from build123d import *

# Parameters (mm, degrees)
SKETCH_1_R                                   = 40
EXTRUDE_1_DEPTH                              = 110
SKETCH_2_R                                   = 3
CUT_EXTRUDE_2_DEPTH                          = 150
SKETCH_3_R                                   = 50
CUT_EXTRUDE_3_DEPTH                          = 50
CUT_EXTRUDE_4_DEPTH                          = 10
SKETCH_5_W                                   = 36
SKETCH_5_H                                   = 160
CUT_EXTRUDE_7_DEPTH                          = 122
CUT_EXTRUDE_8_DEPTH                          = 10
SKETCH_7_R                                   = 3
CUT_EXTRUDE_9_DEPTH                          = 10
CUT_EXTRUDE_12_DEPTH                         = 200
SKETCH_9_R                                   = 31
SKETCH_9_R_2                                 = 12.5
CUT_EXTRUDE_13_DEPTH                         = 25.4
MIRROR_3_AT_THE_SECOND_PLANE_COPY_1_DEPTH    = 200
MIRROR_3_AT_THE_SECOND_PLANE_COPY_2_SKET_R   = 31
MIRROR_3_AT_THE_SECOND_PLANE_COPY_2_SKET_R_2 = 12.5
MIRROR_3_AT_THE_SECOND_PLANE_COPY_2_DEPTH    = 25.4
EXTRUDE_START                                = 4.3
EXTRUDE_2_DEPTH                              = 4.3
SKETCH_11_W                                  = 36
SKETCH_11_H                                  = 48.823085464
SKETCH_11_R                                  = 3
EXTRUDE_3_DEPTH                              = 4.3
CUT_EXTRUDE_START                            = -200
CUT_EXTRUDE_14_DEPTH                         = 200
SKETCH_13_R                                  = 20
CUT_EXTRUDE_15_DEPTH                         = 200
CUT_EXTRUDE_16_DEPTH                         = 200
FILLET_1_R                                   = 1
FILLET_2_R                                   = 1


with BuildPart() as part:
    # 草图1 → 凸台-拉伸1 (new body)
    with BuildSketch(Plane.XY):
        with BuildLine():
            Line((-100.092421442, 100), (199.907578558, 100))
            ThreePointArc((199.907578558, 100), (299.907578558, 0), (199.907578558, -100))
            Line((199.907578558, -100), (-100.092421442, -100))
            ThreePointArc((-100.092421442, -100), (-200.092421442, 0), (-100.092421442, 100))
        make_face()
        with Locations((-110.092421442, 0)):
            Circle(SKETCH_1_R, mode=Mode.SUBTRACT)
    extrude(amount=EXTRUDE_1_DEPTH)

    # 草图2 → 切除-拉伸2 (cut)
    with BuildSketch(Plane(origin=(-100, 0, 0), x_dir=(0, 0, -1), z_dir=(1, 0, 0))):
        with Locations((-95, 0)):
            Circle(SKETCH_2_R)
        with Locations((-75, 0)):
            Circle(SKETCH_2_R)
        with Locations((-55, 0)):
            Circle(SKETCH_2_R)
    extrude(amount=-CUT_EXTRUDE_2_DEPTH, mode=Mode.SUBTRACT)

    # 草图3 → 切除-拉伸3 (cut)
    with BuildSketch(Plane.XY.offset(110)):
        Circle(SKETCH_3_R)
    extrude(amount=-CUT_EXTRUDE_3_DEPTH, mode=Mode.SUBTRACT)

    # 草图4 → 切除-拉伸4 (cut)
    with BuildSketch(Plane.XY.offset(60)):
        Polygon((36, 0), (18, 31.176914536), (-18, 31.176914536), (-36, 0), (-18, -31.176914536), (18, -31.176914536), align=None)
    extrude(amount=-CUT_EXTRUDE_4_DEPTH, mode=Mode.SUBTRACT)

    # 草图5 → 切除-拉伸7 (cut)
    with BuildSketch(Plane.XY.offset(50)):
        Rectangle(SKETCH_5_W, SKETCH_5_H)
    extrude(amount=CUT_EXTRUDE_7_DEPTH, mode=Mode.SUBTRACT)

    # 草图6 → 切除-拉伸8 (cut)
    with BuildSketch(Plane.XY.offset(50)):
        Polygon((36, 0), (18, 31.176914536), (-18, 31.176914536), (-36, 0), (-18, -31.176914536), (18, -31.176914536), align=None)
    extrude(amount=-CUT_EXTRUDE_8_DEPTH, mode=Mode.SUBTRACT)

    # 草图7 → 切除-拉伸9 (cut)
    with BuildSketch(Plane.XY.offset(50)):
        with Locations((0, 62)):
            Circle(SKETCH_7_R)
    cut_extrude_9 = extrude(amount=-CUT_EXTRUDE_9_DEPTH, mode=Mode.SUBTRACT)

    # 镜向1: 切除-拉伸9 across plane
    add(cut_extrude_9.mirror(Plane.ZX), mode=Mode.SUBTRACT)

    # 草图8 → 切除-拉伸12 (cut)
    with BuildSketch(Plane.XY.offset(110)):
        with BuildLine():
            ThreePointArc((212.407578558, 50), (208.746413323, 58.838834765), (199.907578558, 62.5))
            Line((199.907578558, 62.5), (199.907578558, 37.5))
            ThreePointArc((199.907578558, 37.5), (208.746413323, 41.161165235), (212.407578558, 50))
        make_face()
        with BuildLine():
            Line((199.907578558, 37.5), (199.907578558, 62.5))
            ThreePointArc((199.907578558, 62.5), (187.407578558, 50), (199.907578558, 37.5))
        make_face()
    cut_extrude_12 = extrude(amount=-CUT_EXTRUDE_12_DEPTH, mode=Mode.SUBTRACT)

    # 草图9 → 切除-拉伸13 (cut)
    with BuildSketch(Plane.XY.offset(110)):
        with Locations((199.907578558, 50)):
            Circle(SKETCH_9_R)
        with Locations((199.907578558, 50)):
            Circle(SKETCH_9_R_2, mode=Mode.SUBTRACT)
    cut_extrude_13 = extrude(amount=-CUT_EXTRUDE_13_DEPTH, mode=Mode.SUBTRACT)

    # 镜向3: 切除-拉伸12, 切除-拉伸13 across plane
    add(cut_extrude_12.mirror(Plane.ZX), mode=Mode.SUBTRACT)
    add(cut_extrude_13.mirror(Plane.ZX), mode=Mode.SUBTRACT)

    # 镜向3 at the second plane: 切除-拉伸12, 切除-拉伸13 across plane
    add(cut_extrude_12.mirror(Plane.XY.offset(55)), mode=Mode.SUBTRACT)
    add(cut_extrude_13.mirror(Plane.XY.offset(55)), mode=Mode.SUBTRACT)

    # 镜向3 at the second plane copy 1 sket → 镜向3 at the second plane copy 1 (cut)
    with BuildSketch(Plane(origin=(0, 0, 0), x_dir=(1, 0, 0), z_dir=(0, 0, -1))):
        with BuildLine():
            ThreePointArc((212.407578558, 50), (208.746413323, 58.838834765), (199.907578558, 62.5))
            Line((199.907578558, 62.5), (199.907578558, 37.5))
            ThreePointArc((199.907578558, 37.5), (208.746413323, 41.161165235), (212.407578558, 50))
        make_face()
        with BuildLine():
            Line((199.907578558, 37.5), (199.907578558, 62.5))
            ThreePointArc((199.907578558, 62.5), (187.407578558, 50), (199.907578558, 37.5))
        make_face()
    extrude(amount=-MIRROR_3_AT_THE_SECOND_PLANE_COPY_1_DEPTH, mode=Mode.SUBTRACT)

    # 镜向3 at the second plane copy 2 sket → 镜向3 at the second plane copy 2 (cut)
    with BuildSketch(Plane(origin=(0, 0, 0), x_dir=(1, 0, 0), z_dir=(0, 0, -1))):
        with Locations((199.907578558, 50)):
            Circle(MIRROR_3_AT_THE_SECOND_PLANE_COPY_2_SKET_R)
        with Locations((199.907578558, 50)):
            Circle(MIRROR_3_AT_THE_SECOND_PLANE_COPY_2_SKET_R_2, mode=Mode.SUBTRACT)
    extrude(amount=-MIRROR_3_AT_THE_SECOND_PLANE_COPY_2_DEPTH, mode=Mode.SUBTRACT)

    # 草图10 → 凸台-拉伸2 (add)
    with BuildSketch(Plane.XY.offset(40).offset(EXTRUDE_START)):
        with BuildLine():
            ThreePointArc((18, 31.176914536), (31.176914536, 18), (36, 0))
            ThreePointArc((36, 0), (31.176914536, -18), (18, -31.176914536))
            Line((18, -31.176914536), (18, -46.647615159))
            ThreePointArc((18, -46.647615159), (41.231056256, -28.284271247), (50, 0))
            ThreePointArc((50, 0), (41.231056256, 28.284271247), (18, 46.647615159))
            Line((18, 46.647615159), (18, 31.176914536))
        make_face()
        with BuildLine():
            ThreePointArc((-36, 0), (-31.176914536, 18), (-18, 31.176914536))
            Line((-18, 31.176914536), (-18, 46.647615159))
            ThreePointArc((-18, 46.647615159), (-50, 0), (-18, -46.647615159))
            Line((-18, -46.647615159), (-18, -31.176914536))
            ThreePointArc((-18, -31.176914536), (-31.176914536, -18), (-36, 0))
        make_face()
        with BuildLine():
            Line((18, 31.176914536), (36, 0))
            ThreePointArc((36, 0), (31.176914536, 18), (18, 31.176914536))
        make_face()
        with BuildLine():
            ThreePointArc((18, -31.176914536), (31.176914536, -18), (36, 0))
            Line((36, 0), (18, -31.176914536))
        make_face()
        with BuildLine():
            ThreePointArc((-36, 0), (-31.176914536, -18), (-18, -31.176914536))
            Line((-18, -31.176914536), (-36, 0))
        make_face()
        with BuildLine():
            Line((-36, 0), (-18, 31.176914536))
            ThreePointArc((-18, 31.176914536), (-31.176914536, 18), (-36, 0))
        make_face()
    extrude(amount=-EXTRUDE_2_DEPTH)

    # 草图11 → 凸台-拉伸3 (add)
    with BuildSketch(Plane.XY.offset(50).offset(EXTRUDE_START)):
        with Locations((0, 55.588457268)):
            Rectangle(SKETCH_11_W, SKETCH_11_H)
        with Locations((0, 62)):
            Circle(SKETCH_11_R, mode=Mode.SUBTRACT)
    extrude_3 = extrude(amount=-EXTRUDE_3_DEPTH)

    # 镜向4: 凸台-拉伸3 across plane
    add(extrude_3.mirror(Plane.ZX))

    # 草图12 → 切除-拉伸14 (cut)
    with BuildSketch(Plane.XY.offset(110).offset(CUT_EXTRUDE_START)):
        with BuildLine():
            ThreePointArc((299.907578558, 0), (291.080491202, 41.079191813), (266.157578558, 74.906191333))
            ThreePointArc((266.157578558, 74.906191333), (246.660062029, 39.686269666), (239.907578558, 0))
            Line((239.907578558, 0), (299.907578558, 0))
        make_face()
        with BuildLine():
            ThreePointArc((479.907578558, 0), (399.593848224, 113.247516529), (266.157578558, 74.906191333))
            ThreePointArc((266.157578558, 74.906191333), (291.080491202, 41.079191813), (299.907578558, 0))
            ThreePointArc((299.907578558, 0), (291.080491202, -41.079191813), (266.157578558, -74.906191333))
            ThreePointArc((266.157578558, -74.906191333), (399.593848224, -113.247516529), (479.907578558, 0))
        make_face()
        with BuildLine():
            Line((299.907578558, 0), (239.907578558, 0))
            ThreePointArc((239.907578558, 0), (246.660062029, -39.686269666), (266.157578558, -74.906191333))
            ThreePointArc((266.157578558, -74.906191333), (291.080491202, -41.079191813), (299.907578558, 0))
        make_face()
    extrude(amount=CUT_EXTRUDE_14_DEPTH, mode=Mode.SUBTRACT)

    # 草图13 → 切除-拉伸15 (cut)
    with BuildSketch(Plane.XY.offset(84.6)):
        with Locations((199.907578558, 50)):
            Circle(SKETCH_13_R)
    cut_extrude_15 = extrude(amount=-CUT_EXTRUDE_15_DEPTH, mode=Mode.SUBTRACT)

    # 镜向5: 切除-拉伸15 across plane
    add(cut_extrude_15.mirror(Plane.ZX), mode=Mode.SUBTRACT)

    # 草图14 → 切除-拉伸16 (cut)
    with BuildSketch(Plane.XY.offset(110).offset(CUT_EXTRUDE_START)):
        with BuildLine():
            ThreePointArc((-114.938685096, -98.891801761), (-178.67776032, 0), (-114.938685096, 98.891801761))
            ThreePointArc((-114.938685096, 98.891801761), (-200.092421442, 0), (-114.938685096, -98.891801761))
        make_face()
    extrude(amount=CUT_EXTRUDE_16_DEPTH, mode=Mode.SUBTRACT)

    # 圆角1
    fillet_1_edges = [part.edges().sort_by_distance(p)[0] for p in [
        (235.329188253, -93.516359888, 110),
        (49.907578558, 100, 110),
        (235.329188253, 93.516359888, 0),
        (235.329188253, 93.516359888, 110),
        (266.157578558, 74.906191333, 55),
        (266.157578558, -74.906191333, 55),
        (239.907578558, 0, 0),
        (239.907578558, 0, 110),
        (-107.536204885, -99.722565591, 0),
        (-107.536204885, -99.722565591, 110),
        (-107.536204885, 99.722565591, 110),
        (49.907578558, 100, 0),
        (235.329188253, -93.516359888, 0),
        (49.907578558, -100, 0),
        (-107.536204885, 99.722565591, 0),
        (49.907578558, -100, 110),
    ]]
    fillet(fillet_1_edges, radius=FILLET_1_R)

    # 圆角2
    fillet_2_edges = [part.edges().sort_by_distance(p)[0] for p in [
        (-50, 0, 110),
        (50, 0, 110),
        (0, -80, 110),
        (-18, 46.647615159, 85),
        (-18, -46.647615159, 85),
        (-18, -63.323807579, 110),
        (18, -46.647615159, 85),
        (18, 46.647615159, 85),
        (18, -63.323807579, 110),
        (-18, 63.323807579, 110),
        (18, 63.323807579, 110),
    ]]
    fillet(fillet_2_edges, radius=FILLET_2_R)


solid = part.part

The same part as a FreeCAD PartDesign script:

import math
import FreeCAD as App
import Part
import Sketcher
from FreeCAD import Vector
Q = App.Units.Quantity


def edges_at(feature, points):
    """Names of the edges that pass closest to the given points."""
    edges = feature.Shape.Edges
    near = lambda p: min(range(len(edges)), key=lambda i: edges[i].distToShape(Part.Vertex(*p))[0])
    return sorted({f"Edge{near(p) + 1}" for p in points})


def add_polygon(sketch, points):
    """Adds a closed chain of lines whose ends are joined by coincident constraints."""
    first, n = sketch.GeometryCount, len(points)
    for a, b in zip(points, points[1:] + points[:1]):
        sketch.addGeometry(Part.LineSegment(App.Vector(*a, 0), App.Vector(*b, 0)), False)
    for i in range(n):
        sketch.addConstraint(Sketcher.Constraint("Coincident", first + i, 2, first + (i + 1) % n, 1))

doc = App.newDocument("Part")
body = doc.addObject("PartDesign::Body", "Body")

sketch1 = body.newObject("Sketcher::SketchObject", "Sketch")
sketch1.AttachmentSupport = (doc.getObject("XY_Plane"), [""])
sketch1.MapMode = "FlatFace"
sketch1.addGeometry([
    Part.LineSegment(Vector(200, 100, 0), Vector(-100, 100, 0)),
    Part.ArcOfCircle(Part.Circle(Vector(-100, 0, 0), Vector(0, 0, 1), 100), math.radians(90), math.radians(270)),
    Part.LineSegment(Vector(-100, -100, 0), Vector(200, -100, 0)),
    Part.ArcOfCircle(Part.Circle(Vector(200, 0, 0), Vector(0, 0, 1), 100), math.radians(-90), math.radians(90)),
    Part.Circle(Vector(-110, 0, 0), Vector(0, 0, 1), 40),
], False)
sketch1.addConstraint([
    Sketcher.Constraint("Tangent", 0, 2, 1, 1),
    Sketcher.Constraint("Tangent", 1, 2, 2, 1),
    Sketcher.Constraint("Tangent", 2, 2, 3, 1),
    Sketcher.Constraint("Tangent", 3, 2, 0, 1),
    Sketcher.Constraint("Horizontal", 0),
    Sketcher.Constraint("Horizontal", 2),
    Sketcher.Constraint("PointOnObject", 1, 3, -1),
    Sketcher.Constraint("PointOnObject", 4, 3, -1),
    Sketcher.Constraint("Diameter", 4, Q("80 mm")),
    Sketcher.Constraint("Radius", 1, Q("100 mm")),
    Sketcher.Constraint("DistanceX", 0, 2, 0, 1, Q("300 mm")),
    Sketcher.Constraint("DistanceX", 4, 3, 1, 3, Q("10 mm")),
    Sketcher.Constraint("DistanceX", 1, 3, -1, 1, Q("100.092421 mm")),
])
pad1 = body.newObject("PartDesign::Pad", "Pad")
pad1.Profile = sketch1
pad1.Length = 110

sketch2 = body.newObject("Sketcher::SketchObject", "Sketch001")
sketch2.AttachmentSupport = (doc.getObject("YZ_Plane"), [""])
sketch2.MapMode = "FlatFace"
sketch2.AttachmentOffset = App.Placement(Vector(0, 0, -100), App.Rotation())
sketch2.addGeometry([
    Part.Circle(Vector(0, 95, 0), Vector(0, 0, 1), 3),
    Part.Circle(Vector(0, 75, 0), Vector(0, 0, 1), 3),
    Part.Circle(Vector(0, 55, 0), Vector(0, 0, 1), 3),
], False)
sketch2.addConstraint([
    Sketcher.Constraint("Equal", 0, 1),
    Sketcher.Constraint("Equal", 1, 2),
    Sketcher.Constraint("PointOnObject", 0, 3, -2),
    Sketcher.Constraint("PointOnObject", 1, 3, -2),
    Sketcher.Constraint("PointOnObject", 2, 3, -2),
    Sketcher.Constraint("Diameter", 0, Q("6 mm")),
    Sketcher.Constraint("DistanceY", -1, 1, 0, 3, Q("95 mm")),
    Sketcher.Constraint("DistanceY", -1, 1, 1, 3, Q("75 mm")),
    Sketcher.Constraint("DistanceY", -1, 1, 2, 3, Q("55 mm")),
])
pocket1 = body.newObject("PartDesign::Pocket", "Pocket")
pocket1.Profile = sketch2
pocket1.Length = 150

sketch3 = body.newObject("Sketcher::SketchObject", "Sketch002")
sketch3.AttachmentSupport = (doc.getObject("XY_Plane"), [""])
sketch3.MapMode = "FlatFace"
sketch3.AttachmentOffset = App.Placement(Vector(0, 0, 110), App.Rotation())
sketch3.addGeometry(Part.Circle(Vector(0, 0, 0), Vector(0, 0, 1), 50), False)
sketch3.addConstraint([
    Sketcher.Constraint("Coincident", 0, 3, -1, 1),
    Sketcher.Constraint("Diameter", 0, Q("100 mm")),
])
pocket2 = body.newObject("PartDesign::Pocket", "Pocket001")
pocket2.Profile = sketch3
pocket2.Length = 50

sketch4 = body.newObject("Sketcher::SketchObject", "Sketch003")
sketch4.AttachmentSupport = (doc.getObject("XY_Plane"), [""])
sketch4.MapMode = "FlatFace"
sketch4.AttachmentOffset = App.Placement(Vector(0, 0, 60), App.Rotation())
add_polygon(sketch4, [(36, 0), (18, 31), (-18, 31), (-36, 0), (-18, -31), (18, -31)])
sketch4.addConstraint([
    Sketcher.Constraint("Horizontal", 1),
    Sketcher.Constraint("Horizontal", 4),
    Sketcher.Constraint("Symmetric", 0, 2, 3, 2, -1, 1),
    Sketcher.Constraint("Symmetric", 2, 2, 5, 2, -1, 1),
    Sketcher.Constraint("PointOnObject", 2, 2, -1),
    Sketcher.Constraint("Parallel", 2, 5),
    Sketcher.Constraint("Vertical", 1, 2, 3, 2),
    Sketcher.Constraint("DistanceX", 1, 2, 1, 1, Q("36 mm")),
    Sketcher.Constraint("Angle", 0, Q("120 deg")),
    Sketcher.Constraint("Distance", 0, Q("36 mm")),
])
pocket3 = body.newObject("PartDesign::Pocket", "Pocket002")
pocket3.Profile = sketch4
pocket3.Length = 10

sketch5 = body.newObject("Sketcher::SketchObject", "Sketch004")
sketch5.AttachmentSupport = (doc.getObject("XY_Plane"), [""])
sketch5.MapMode = "FlatFace"
sketch5.AttachmentOffset = App.Placement(Vector(0, 0, 50), App.Rotation())
add_polygon(sketch5, [(-18, 80), (-18, -80), (18, -80), (18, 80)])
sketch5.addConstraint([
    Sketcher.Constraint("Vertical", 0),
    Sketcher.Constraint("Horizontal", 1),
    Sketcher.Constraint("Vertical", 2),
    Sketcher.Constraint("Horizontal", 3),
    Sketcher.Constraint("Symmetric", 0, 2, 2, 2, -1, 1),
    Sketcher.Constraint("DistanceX", 1, 1, 1, 2, Q("36 mm")),
    Sketcher.Constraint("DistanceY", 0, 2, 0, 1, Q("160 mm")),
])
pocket4 = body.newObject("PartDesign::Pocket", "Pocket003")
pocket4.Profile = sketch5
pocket4.Length = 122
pocket4.Reversed = True

sketch6 = body.newObject("Sketcher::SketchObject", "Sketch005")
sketch6.AttachmentSupport = (doc.getObject("XY_Plane"), [""])
sketch6.MapMode = "FlatFace"
sketch6.AttachmentOffset = App.Placement(Vector(0, 0, 50), App.Rotation())
add_polygon(sketch6, [(36, 0), (18, 31), (-18, 31), (-36, 0), (-18, -31), (18, -31)])
sketch6.addConstraint([
    Sketcher.Constraint("Horizontal", 1),
    Sketcher.Constraint("Horizontal", 4),
    Sketcher.Constraint("Symmetric", 0, 2, 3, 2, -1, 1),
    Sketcher.Constraint("Symmetric", 2, 2, 5, 2, -1, 1),
    Sketcher.Constraint("PointOnObject", 2, 2, -1),
    Sketcher.Constraint("Parallel", 2, 5),
    Sketcher.Constraint("Vertical", 1, 2, 3, 2),
    Sketcher.Constraint("DistanceX", 1, 2, 1, 1, Q("36 mm")),
    Sketcher.Constraint("Angle", 0, Q("120 deg")),
    Sketcher.Constraint("Distance", 0, Q("36 mm")),
])
pocket5 = body.newObject("PartDesign::Pocket", "Pocket004")
pocket5.Profile = sketch6
pocket5.Length = 10

sketch7 = body.newObject("Sketcher::SketchObject", "Sketch006")
sketch7.AttachmentSupport = (doc.getObject("XY_Plane"), [""])
sketch7.MapMode = "FlatFace"
sketch7.AttachmentOffset = App.Placement(Vector(0, 0, 50), App.Rotation())
sketch7.addGeometry(Part.Circle(Vector(0, 62, 0), Vector(0, 0, 1), 3), False)
sketch7.addConstraint([
    Sketcher.Constraint("PointOnObject", 0, 3, -2),
    Sketcher.Constraint("Diameter", 0, Q("6 mm")),
    Sketcher.Constraint("DistanceY", -1, 1, 0, 3, Q("62 mm")),
])
pocket6 = body.newObject("PartDesign::Pocket", "Pocket005")
pocket6.Profile = sketch7
pocket6.Length = 10
doc.recompute()

mirrored = body.newObject("PartDesign::Mirrored", "Mirrored")
mirrored.Originals = [pocket6]
mirrored.MirrorPlane = (doc.getObject("XZ_Plane"), [""])
body.Tip = mirrored

sketch8 = body.newObject("Sketcher::SketchObject", "Sketch007")
sketch8.AttachmentSupport = (doc.getObject("XY_Plane"), [""])
sketch8.MapMode = "FlatFace"
sketch8.AttachmentOffset = App.Placement(Vector(0, 0, 110), App.Rotation())
sketch8.addGeometry([
    Part.ArcOfCircle(Part.Circle(Vector(200, 50, 0), Vector(0, 0, 1), 12), math.radians(0), math.radians(90)),
    Part.ArcOfCircle(Part.Circle(Vector(200, 50, 0), Vector(0, 0, 1), 12), math.radians(90), math.radians(270)),
    Part.ArcOfCircle(Part.Circle(Vector(200, 50, 0), Vector(0, 0, 1), 12), math.radians(-90), math.radians(0)),
], False)
sketch8.addConstraint([
    Sketcher.Constraint("Tangent", 0, 2, 1, 1),
    Sketcher.Constraint("Tangent", 1, 2, 2, 1),
    Sketcher.Constraint("Tangent", 2, 2, 0, 1),
    Sketcher.Constraint("Horizontal", 1, 3, 2, 2),
    Sketcher.Constraint("Vertical", 2, 3, 0, 2),
    Sketcher.Constraint("Vertical", 0, 2, 1, 2),
    Sketcher.Constraint("Radius", 0, Q("12.5 mm")),
    Sketcher.Constraint("DistanceY", -1, 1, 0, 3, Q("50 mm")),
    Sketcher.Constraint("DistanceX", -1, 1, 0, 3, Q("199.907579 mm")),
])
pocket7 = body.newObject("PartDesign::Pocket", "Pocket006")
pocket7.Profile = sketch8
pocket7.Length = 200

sketch9 = body.newObject("Sketcher::SketchObject", "Sketch008")
sketch9.AttachmentSupport = (doc.getObject("XY_Plane"), [""])
sketch9.MapMode = "FlatFace"
sketch9.AttachmentOffset = App.Placement(Vector(0, 0, 110), App.Rotation())
sketch9.addGeometry([
    Part.Circle(Vector(200, 50, 0), Vector(0, 0, 1), 31),
    Part.Circle(Vector(200, 50, 0), Vector(0, 0, 1), 12),
], False)
sketch9.addConstraint([
    Sketcher.Constraint("Coincident", 1, 3, 0, 3),
    Sketcher.Constraint("Diameter", 0, Q("62 mm")),
    Sketcher.Constraint("Diameter", 1, Q("25 mm")),
    Sketcher.Constraint("DistanceY", -1, 1, 0, 3, Q("50 mm")),
    Sketcher.Constraint("DistanceX", -1, 1, 0, 3, Q("199.907579 mm")),
])
pocket8 = body.newObject("PartDesign::Pocket", "Pocket007")
pocket8.Profile = sketch9
pocket8.Length = 25.4
doc.recompute()

mirrored2 = body.newObject("PartDesign::Mirrored", "Mirrored001")
mirrored2.Originals = [pocket7, pocket8]
mirrored2.MirrorPlane = (doc.getObject("XZ_Plane"), [""])
body.Tip = mirrored2
doc.recompute()

datumplane = body.newObject("PartDesign::Plane", "DatumPlane")
datumplane.AttachmentSupport = (doc.getObject("XY_Plane"), [""])
datumplane.MapMode = "FlatFace"
datumplane.AttachmentOffset = App.Placement(Vector(0, 0, 55), App.Rotation())
mirrored3 = body.newObject("PartDesign::Mirrored", "Mirrored002")
mirrored3.Originals = [pocket7, pocket8]
mirrored3.MirrorPlane = (datumplane, [""])
body.Tip = mirrored3

sketch10 = body.newObject("Sketcher::SketchObject", "Sketch009")
sketch10.AttachmentSupport = (doc.getObject("XY_Plane"), [""])
sketch10.MapMode = "FlatFace"
sketch10.addGeometry([
    Part.ArcOfCircle(Part.Circle(Vector(200, -50, 0), Vector(0, 0, 1), 12), math.radians(-90), math.radians(0)),
    Part.ArcOfCircle(Part.Circle(Vector(200, -50, 0), Vector(0, 0, 1), 12), math.radians(90), math.radians(270)),
    Part.ArcOfCircle(Part.Circle(Vector(200, -50, 0), Vector(0, 0, 1), 12), math.radians(0), math.radians(90)),
], False)
sketch10.addConstraint([
    Sketcher.Constraint("Tangent", 0, 1, 1, 2),
    Sketcher.Constraint("Tangent", 1, 1, 2, 2),
    Sketcher.Constraint("Tangent", 2, 1, 0, 2),
    Sketcher.Constraint("Horizontal", 1, 3, 2, 1),
    Sketcher.Constraint("Vertical", 2, 3, 0, 1),
    Sketcher.Constraint("Vertical", 0, 1, 1, 1),
    Sketcher.Constraint("Radius", 0, Q("12.5 mm")),
    Sketcher.Constraint("DistanceY", 0, 3, -1, 1, Q("50 mm")),
    Sketcher.Constraint("DistanceX", -1, 1, 0, 3, Q("199.907579 mm")),
])
pocket9 = body.newObject("PartDesign::Pocket", "Pocket008")
pocket9.Profile = sketch10
pocket9.Length = 200
pocket9.Reversed = True

sketch11 = body.newObject("Sketcher::SketchObject", "Sketch010")
sketch11.AttachmentSupport = (doc.getObject("XY_Plane"), [""])
sketch11.MapMode = "FlatFace"
sketch11.addGeometry([
    Part.Circle(Vector(200, -50, 0), Vector(0, 0, 1), 31),
    Part.Circle(Vector(200, -50, 0), Vector(0, 0, 1), 12),
], False)
sketch11.addConstraint([
    Sketcher.Constraint("Coincident", 1, 3, 0, 3),
    Sketcher.Constraint("Diameter", 0, Q("62 mm")),
    Sketcher.Constraint("Diameter", 1, Q("25 mm")),
    Sketcher.Constraint("DistanceY", 0, 3, -1, 1, Q("50 mm")),
    Sketcher.Constraint("DistanceX", -1, 1, 0, 3, Q("199.907579 mm")),
])
pocket10 = body.newObject("PartDesign::Pocket", "Pocket009")
pocket10.Profile = sketch11
pocket10.Length = 25.4
pocket10.Reversed = True

sketch12 = body.newObject("Sketcher::SketchObject", "Sketch011")
sketch12.AttachmentSupport = (doc.getObject("XY_Plane"), [""])
sketch12.MapMode = "FlatFace"
sketch12.AttachmentOffset = App.Placement(Vector(0, 0, 44.3), App.Rotation())
sketch12.addGeometry([
    Part.LineSegment(Vector(18, -31, 0), Vector(18, -47, 0)),
    Part.ArcOfCircle(Part.Circle(Vector(0, 0, 0), Vector(0, 0, 1), 50), math.radians(-69), math.radians(0)),
    Part.ArcOfCircle(Part.Circle(Vector(0, 0, 0), Vector(0, 0, 1), 50), math.radians(0), math.radians(69)),
    Part.LineSegment(Vector(18, 47, 0), Vector(18, 31, 0)),
    Part.LineSegment(Vector(18, 31, 0), Vector(36, 0, 0)),
    Part.LineSegment(Vector(36, 0, 0), Vector(18, -31, 0)),
    Part.LineSegment(Vector(-18, 31, 0), Vector(-18, 47, 0)),
    Part.ArcOfCircle(Part.Circle(Vector(0, 0, 0), Vector(0, 0, 1), 50), math.radians(111), math.radians(249)),
    Part.LineSegment(Vector(-18, -47, 0), Vector(-18, -31, 0)),
    Part.LineSegment(Vector(-18, -31, 0), Vector(-36, 0, 0)),
    Part.LineSegment(Vector(-36, 0, 0), Vector(-18, 31, 0)),
], False)
sketch12.addConstraint([
    Sketcher.Constraint("Coincident", 0, 2, 1, 1),
    Sketcher.Constraint("Tangent", 1, 2, 2, 1),
    Sketcher.Constraint("Coincident", 2, 2, 3, 1),
    Sketcher.Constraint("Coincident", 3, 2, 4, 1),
    Sketcher.Constraint("Coincident", 4, 2, 5, 1),
    Sketcher.Constraint("Coincident", 5, 2, 0, 1),
    Sketcher.Constraint("Coincident", 6, 2, 7, 1),
    Sketcher.Constraint("Coincident", 7, 2, 8, 1),
    Sketcher.Constraint("Coincident", 8, 2, 9, 1),
    Sketcher.Constraint("Coincident", 9, 2, 10, 1),
    Sketcher.Constraint("Coincident", 10, 2, 6, 1),
    Sketcher.Constraint("Vertical", 0),
    Sketcher.Constraint("Vertical", 3),
    Sketcher.Constraint("Vertical", 6),
    Sketcher.Constraint("Vertical", 8),
    Sketcher.Constraint("Coincident", 1, 3, -1, 1),
    Sketcher.Constraint("Coincident", 7, 3, -1, 1),
    Sketcher.Constraint("Equal", 1, 2),
    Sketcher.Constraint("Equal", 2, 7),
    Sketcher.Constraint("Symmetric", 3, 2, 8, 2, -1, 1),
    Sketcher.Constraint("Symmetric", 4, 2, 9, 2, -1, 1),
    Sketcher.Constraint("Symmetric", 5, 2, 10, 2, -1, 1),
    Sketcher.Constraint("Symmetric", 5, 2, 8, 2, -2),
    Sketcher.Constraint("PointOnObject", 1, 2, -1),
    Sketcher.Constraint("PointOnObject", 4, 2, -1),
    Sketcher.Constraint("Radius", 1, Q("50 mm")),
    Sketcher.Constraint("Angle", 4, Q("-60 deg")),
    Sketcher.Constraint("Distance", 4, Q("36 mm")),
    Sketcher.Constraint("DistanceX", -1, 1, 0, 2, Q("18 mm")),
])
pad2 = body.newObject("PartDesign::Pad", "Pad001")
pad2.Profile = sketch12
pad2.Length = 4.3
pad2.Reversed = True

sketch13 = body.newObject("Sketcher::SketchObject", "Sketch012")
sketch13.AttachmentSupport = (doc.getObject("XY_Plane"), [""])
sketch13.MapMode = "FlatFace"
sketch13.AttachmentOffset = App.Placement(Vector(0, 0, 54.3), App.Rotation())
add_polygon(sketch13, [(-18, 80), (-18, 31.2), (18, 31.2), (18, 80)])
sketch13.addGeometry(Part.Circle(Vector(0, 62, 0), Vector(0, 0, 1), 3), False)
sketch13.addConstraint([
    Sketcher.Constraint("Vertical", 0),
    Sketcher.Constraint("Horizontal", 1),
    Sketcher.Constraint("Vertical", 2),
    Sketcher.Constraint("Horizontal", 3),
    Sketcher.Constraint("PointOnObject", 4, 3, -2),
    Sketcher.Constraint("Diameter", 4, Q("6 mm")),
    Sketcher.Constraint("DistanceX", 1, 1, 1, 2, Q("36 mm")),
    Sketcher.Constraint("DistanceY", -1, 1, 4, 3, Q("62 mm")),
    Sketcher.Constraint("DistanceX", 0, 2, -1, 1, Q("18 mm")),
    Sketcher.Constraint("DistanceY", -1, 1, 2, 2, Q("80 mm")),
    Sketcher.Constraint("DistanceY", 0, 2, 0, 1, Q("48.823085 mm")),
])
pad3 = body.newObject("PartDesign::Pad", "Pad002")
pad3.Profile = sketch13
pad3.Length = 4.3
pad3.Reversed = True
doc.recompute()

mirrored4 = body.newObject("PartDesign::Mirrored", "Mirrored003")
mirrored4.Originals = [pad3]
mirrored4.MirrorPlane = (doc.getObject("XZ_Plane"), [""])
body.Tip = mirrored4

sketch14 = body.newObject("Sketcher::SketchObject", "Sketch013")
sketch14.AttachmentSupport = (doc.getObject("XY_Plane"), [""])
sketch14.MapMode = "FlatFace"
sketch14.AttachmentOffset = App.Placement(Vector(0, 0, -90), App.Rotation())
sketch14.addGeometry([
    Part.ArcOfCircle(Part.Circle(Vector(360, 0, 0), Vector(0, 0, 1), 120), math.radians(180), math.radians(219)),
    Part.ArcOfCircle(Part.Circle(Vector(360, 0, 0), Vector(0, 0, 1), 120), math.radians(-141), math.radians(0)),
    Part.ArcOfCircle(Part.Circle(Vector(360, 0, 0), Vector(0, 0, 1), 120), math.radians(0), math.radians(141)),
    Part.ArcOfCircle(Part.Circle(Vector(360, 0, 0), Vector(0, 0, 1), 120), math.radians(141), math.radians(180)),
], False)
sketch14.addConstraint([
    Sketcher.Constraint("Tangent", 0, 2, 1, 1),
    Sketcher.Constraint("Tangent", 1, 2, 2, 1),
    Sketcher.Constraint("Tangent", 2, 2, 3, 1),
    Sketcher.Constraint("Tangent", 3, 2, 0, 1),
    Sketcher.Constraint("Equal", 0, 1),
    Sketcher.Constraint("Symmetric", 0, 2, 2, 2, -1),
    Sketcher.Constraint("PointOnObject", 1, 2, -1),
    Sketcher.Constraint("PointOnObject", 3, 2, -1),
    Sketcher.Constraint("Radius", 0, Q("120 mm")),
    Sketcher.Constraint("DistanceX", 0, 2, 1, 3, Q("93.75 mm")),
    Sketcher.Constraint("DistanceX", -1, 1, 0, 3, Q("359.907579 mm")),
])
pocket11 = body.newObject("PartDesign::Pocket", "Pocket010")
pocket11.Profile = sketch14
pocket11.Length = 200
pocket11.Reversed = True

sketch15 = body.newObject("Sketcher::SketchObject", "Sketch014")
sketch15.AttachmentSupport = (doc.getObject("XY_Plane"), [""])
sketch15.MapMode = "FlatFace"
sketch15.AttachmentOffset = App.Placement(Vector(0, 0, 84.6), App.Rotation())
sketch15.addGeometry(Part.Circle(Vector(200, 50, 0), Vector(0, 0, 1), 20), False)
sketch15.addConstraint([
    Sketcher.Constraint("Diameter", 0, Q("40 mm")),
    Sketcher.Constraint("DistanceY", -1, 1, 0, 3, Q("50 mm")),
    Sketcher.Constraint("DistanceX", -1, 1, 0, 3, Q("199.907579 mm")),
])
pocket12 = body.newObject("PartDesign::Pocket", "Pocket011")
pocket12.Profile = sketch15
pocket12.Length = 200
doc.recompute()

mirrored5 = body.newObject("PartDesign::Mirrored", "Mirrored004")
mirrored5.Originals = [pocket12]
mirrored5.MirrorPlane = (doc.getObject("XZ_Plane"), [""])
body.Tip = mirrored5

sketch16 = body.newObject("Sketcher::SketchObject", "Sketch015")
sketch16.AttachmentSupport = (doc.getObject("XY_Plane"), [""])
sketch16.MapMode = "FlatFace"
sketch16.AttachmentOffset = App.Placement(Vector(0, 0, -90), App.Rotation())
sketch16.addGeometry([
    Part.ArcOfCircle(Part.Circle(Vector(-70, 0, 0), Vector(0, 0, 1), 109), math.radians(114), math.radians(246)),
    Part.ArcOfCircle(Part.Circle(Vector(-100, 0, 0), Vector(0, 0, 1), 100), math.radians(99), math.radians(261)),
], False)
sketch16.addConstraint([
    Sketcher.Constraint("Coincident", 0, 1, 1, 1),
    Sketcher.Constraint("Coincident", 1, 2, 0, 2),
    Sketcher.Constraint("Symmetric", 0, 1, 1, 2, -1),
    Sketcher.Constraint("Radius", 1, Q("100 mm")),
    Sketcher.Constraint("DistanceX", 1, 3, 0, 3, Q("30 mm")),
    Sketcher.Constraint("Radius", 0, Q("108.585339 mm")),
    Sketcher.Constraint("DistanceX", 0, 3, -1, 1, Q("70.092421 mm")),
])
pocket13 = body.newObject("PartDesign::Pocket", "Pocket012")
pocket13.Profile = sketch16
pocket13.Length = 200
pocket13.Reversed = True
doc.recompute()

fillet = body.newObject("PartDesign::Fillet", "Fillet")
fillet.Base = (pocket13, edges_at(pocket13, [
    (235.329, -93.516, 110),
    (49.908, 100, 110),
    (235.329, 93.516, 0),
    (235.329, 93.516, 110),
    (266.158, 74.906, 55),
    (266.158, -74.906, 55),
    (246.66, -39.686, 0),
    (246.66, -39.686, 110),
    (-107.536, -99.723, 0),
    (-107.536, -99.723, 110),
    (-107.536, 99.723, 110),
    (49.908, 100, 0),
    (235.329, -93.516, 0),
    (49.908, -100, 0),
    (-107.536, 99.723, 0),
    (49.908, -100, 110),
]))
fillet.Radius = 1
doc.recompute()

fillet2 = body.newObject("PartDesign::Fillet", "Fillet001")
fillet2.Base = (fillet, edges_at(fillet, [
    (-50, 0, 110),
    (50, 0, 110),
    (0, -80, 110),
    (-18, 46.648, 85),
    (-18, -46.648, 85),
    (-18, -63.324, 110),
    (18, -46.648, 85),
    (18, 46.648, 85),
    (18, -63.324, 110),
    (-18, 63.324, 110),
    (18, 63.324, 110),
]))
fillet2.Radius = 1

doc.recompute()
